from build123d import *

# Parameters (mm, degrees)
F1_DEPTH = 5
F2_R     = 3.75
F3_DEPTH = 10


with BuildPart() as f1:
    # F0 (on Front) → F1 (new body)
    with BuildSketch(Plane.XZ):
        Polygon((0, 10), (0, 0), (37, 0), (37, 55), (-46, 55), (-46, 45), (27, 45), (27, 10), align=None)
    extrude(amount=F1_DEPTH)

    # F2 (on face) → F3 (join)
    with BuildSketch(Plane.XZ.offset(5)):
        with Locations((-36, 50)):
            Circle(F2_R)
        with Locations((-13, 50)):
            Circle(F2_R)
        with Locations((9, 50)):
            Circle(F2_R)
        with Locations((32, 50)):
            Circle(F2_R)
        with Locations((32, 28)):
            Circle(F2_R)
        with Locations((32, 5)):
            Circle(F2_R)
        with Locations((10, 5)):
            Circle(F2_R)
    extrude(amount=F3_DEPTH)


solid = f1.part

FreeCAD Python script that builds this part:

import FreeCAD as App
import Part
import Sketcher
from FreeCAD import Vector
Q = App.Units.Quantity


def add_polygon(sketch, points):
    """Adds a closed chain of lines whose ends are joined by coincident constraints."""
    first, n = sketch.GeometryCount, len(points)
    for a, b in zip(points, points[1:] + points[:1]):
        sketch.addGeometry(Part.LineSegment(App.Vector(*a, 0), App.Vector(*b, 0)), False)
    for i in range(n):
        sketch.addConstraint(Sketcher.Constraint("Coincident", first + i, 2, first + (i + 1) % n, 1))

doc = App.newDocument("Part")
params = doc.addObject("Spreadsheet::Sheet", "Params")
for row, (alias, value) in enumerate([
    ("sketch1_width", "37 mm"),
    ("sketch1_width2", "83 mm"),
    ("sketch1_width3", "73 mm"),
    ("sketch1_height", "10 mm"),
    ("sketch1_height2", "55 mm"),
    ("pad1_length", "5 mm"),
    ("sketch2_diameter", "7.5 mm"),
    ("pad2_length", "10 mm"),
], start=1):
    params.set(f"A{row}", alias)
    params.set(f"B{row}", "=" + value)
    params.setAlias(f"B{row}", alias)

body = doc.addObject("PartDesign::Body", "Body")

# Sketch on XZ plane
sketch1 = body.newObject("Sketcher::SketchObject", "Sketch")
sketch1.AttachmentSupport = (doc.getObject("XZ_Plane"), [""])
sketch1.MapMode = "FlatFace"
add_polygon(sketch1, [(0, 10), (0, 0), (37, 0), (37, 55), (-46, 55), (-46, 45), (27, 45), (27, 10)])  # lines 0-7
sketch1.addConstraint([
    Sketcher.Constraint("Vertical", 0),
    Sketcher.Constraint("Horizontal", 1),
    Sketcher.Constraint("Vertical", 2),
    Sketcher.Constraint("Horizontal", 3),
    Sketcher.Constraint("Vertical", 4),
    Sketcher.Constraint("Horizontal", 5),
    Sketcher.Constraint("Vertical", 6),
    Sketcher.Constraint("Horizontal", 7),
    Sketcher.Constraint("Coincident", 0, 2, -1, 1),
    Sketcher.Constraint("Equal", 0, 4),
    Sketcher.Constraint("DistanceX", 1, 1, 1, 2, Q("37 mm")),
    Sketcher.Constraint("DistanceX", 3, 2, 3, 1, Q("83 mm")),
    Sketcher.Constraint("DistanceX", 5, 1, 5, 2, Q("73 mm")),
    Sketcher.Constraint("DistanceY", 0, 2, 0, 1, Q("10 mm")),
    Sketcher.Constraint("DistanceY", 2, 1, 2, 2, Q("55 mm")),
])
sketch1.setExpression("Constraints[18]", "Params.sketch1_width")
sketch1.setExpression("Constraints[19]", "Params.sketch1_width2")
sketch1.setExpression("Constraints[20]", "Params.sketch1_width3")
sketch1.setExpression("Constraints[21]", "Params.sketch1_height")
sketch1.setExpression("Constraints[22]", "Params.sketch1_height2")
pad1 = body.newObject("PartDesign::Pad", "Pad")
pad1.Profile = sketch1
pad1.setExpression("Length", "Params.pad1_length")

# Sketch on XZ plane
sketch2 = body.newObject("Sketcher::SketchObject", "Sketch001")
sketch2.AttachmentSupport = (doc.getObject("XZ_Plane"), [""])
sketch2.MapMode = "FlatFace"
sketch2.AttachmentOffset = App.Placement(Vector(0, 0, 5), App.Rotation())
sketch2.addGeometry([
    Part.Circle(Vector(-36, 50, 0), Vector(0, 0, 1), 3.8),  # 0
    Part.Circle(Vector(-13, 50, 0), Vector(0, 0, 1), 3.8),  # 1
    Part.Circle(Vector(9, 50, 0), Vector(0, 0, 1), 3.8),  # 2
    Part.Circle(Vector(32, 50, 0), Vector(0, 0, 1), 3.8),  # 3
    Part.Circle(Vector(32, 28, 0), Vector(0, 0, 1), 3.8),  # 4
    Part.Circle(Vector(32, 5, 0), Vector(0, 0, 1), 3.8),  # 5
    Part.Circle(Vector(10, 5, 0), Vector(0, 0, 1), 3.8),  # 6
], False)
sketch2.addConstraint([
    Sketcher.Constraint("Equal", 0, 1),
    Sketcher.Constraint("Equal", 1, 2),
    Sketcher.Constraint("Equal", 2, 3),
    Sketcher.Constraint("Equal", 3, 4),
    Sketcher.Constraint("Equal", 4, 5),
    Sketcher.Constraint("Equal", 5, 6),
    Sketcher.Constraint("Horizontal", 0, 3, 1, 3),
    Sketcher.Constraint("Horizontal", 1, 3, 2, 3),
    Sketcher.Constraint("Horizontal", 2, 3, 3, 3),
    Sketcher.Constraint("Horizontal", 5, 3, 6, 3),
    Sketcher.Constraint("Vertical", 3, 3, 4, 3),
    Sketcher.Constraint("Vertical", 4, 3, 5, 3),
    Sketcher.Constraint("Diameter", 0, Q("7.5 mm")),
    Sketcher.Constraint("DistanceX", 0, 3, -1, 1, Q("36 mm")),
    Sketcher.Constraint("DistanceY", -1, 1, 0, 3, Q("50 mm")),
    Sketcher.Constraint("DistanceX", 1, 3, -1, 1, Q("13 mm")),
    Sketcher.Constraint("DistanceX", -1, 1, 2, 3, Q("9 mm")),
    Sketcher.Constraint("DistanceX", -1, 1, 3, 3, Q("32 mm")),
    Sketcher.Constraint("DistanceY", -1, 1, 4, 3, Q("28 mm")),
    Sketcher.Constraint("DistanceY", -1, 1, 5, 3, Q("5 mm")),
    Sketcher.Constraint("DistanceX", -1, 1, 6, 3, Q("10 mm")),
])
sketch2.setExpression("Constraints[12]", "Params.sketch2_diameter")
pad2 = body.newObject("PartDesign::Pad", "Pad001")
pad2.Profile = sketch2
pad2.setExpression("Length", "Params.pad2_length")

doc.recompute()
